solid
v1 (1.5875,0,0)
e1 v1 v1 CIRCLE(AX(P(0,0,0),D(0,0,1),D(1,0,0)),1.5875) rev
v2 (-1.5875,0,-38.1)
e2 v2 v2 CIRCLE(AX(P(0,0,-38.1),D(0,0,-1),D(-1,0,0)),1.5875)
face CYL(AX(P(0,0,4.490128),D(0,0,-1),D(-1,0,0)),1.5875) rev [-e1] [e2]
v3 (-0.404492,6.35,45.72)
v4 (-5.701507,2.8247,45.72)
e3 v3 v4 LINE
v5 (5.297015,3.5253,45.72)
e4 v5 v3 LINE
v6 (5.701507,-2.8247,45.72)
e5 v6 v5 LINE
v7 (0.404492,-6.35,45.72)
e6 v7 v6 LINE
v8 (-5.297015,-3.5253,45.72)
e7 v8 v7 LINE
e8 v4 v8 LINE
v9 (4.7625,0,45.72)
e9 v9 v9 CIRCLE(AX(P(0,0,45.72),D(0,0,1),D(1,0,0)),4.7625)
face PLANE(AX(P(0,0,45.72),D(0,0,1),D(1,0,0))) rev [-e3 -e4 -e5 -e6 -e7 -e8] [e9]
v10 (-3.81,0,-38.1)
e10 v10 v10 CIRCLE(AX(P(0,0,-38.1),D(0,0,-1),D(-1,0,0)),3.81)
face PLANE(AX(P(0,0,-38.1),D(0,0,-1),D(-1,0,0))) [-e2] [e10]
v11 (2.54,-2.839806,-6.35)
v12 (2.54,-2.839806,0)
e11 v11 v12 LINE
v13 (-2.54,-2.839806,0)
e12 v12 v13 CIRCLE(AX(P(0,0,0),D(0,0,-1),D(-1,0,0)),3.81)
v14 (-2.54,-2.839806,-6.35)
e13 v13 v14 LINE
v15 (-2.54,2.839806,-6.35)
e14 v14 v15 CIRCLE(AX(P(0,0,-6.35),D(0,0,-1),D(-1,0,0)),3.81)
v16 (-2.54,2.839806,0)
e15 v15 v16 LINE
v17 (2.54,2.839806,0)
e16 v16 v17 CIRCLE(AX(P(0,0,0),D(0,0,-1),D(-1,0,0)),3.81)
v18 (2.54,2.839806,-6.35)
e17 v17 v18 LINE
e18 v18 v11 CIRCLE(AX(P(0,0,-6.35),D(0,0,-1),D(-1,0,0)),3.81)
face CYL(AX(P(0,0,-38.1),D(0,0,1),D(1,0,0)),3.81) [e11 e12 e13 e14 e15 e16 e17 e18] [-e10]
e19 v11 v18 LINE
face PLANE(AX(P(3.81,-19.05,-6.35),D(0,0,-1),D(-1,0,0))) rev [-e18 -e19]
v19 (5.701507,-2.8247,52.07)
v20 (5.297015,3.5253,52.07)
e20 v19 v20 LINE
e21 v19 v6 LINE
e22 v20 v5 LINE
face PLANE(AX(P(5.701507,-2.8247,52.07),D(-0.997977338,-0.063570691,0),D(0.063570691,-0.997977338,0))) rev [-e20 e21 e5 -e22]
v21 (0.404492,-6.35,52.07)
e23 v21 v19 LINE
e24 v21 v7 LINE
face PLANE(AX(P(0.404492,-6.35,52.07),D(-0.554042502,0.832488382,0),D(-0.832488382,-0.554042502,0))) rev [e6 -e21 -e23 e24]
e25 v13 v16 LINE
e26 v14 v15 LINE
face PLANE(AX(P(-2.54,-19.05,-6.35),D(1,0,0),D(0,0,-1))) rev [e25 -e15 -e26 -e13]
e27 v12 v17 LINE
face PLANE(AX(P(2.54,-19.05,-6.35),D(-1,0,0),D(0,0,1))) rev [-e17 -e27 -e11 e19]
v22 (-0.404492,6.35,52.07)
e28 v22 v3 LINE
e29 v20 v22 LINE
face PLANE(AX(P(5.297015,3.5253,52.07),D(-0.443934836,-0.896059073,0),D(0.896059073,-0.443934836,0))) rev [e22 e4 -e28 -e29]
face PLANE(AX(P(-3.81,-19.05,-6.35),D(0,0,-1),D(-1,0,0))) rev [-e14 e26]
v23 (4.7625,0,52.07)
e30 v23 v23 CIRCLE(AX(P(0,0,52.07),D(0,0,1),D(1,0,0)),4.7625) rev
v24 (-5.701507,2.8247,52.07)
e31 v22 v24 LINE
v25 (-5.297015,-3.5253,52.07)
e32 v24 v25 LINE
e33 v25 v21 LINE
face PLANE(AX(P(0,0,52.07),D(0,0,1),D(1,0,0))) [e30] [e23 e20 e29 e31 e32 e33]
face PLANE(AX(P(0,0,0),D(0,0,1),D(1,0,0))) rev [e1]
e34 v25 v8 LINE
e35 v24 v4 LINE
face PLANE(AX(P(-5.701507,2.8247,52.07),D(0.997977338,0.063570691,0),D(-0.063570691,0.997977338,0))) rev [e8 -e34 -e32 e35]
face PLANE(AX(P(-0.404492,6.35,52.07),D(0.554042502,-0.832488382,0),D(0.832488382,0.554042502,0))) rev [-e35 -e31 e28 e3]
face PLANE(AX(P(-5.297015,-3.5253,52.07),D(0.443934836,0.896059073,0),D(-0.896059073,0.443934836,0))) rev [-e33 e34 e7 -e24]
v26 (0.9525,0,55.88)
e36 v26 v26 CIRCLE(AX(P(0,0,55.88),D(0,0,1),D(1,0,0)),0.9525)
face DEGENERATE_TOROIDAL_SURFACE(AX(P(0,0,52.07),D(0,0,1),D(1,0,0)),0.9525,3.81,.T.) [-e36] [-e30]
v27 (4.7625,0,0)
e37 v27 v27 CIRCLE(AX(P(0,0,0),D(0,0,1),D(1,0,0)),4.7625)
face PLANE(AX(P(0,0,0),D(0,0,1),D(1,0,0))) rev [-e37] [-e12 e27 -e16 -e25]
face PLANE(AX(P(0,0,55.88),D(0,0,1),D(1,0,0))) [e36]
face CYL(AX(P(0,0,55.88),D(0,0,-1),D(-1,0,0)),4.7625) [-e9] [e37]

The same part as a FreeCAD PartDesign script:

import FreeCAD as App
import Part
import Sketcher
from FreeCAD import Vector
Q = App.Units.Quantity


def edges_at(feature, points):
    """Names of the edges that pass closest to the given points."""
    edges = feature.Shape.Edges
    near = lambda p: min(range(len(edges)), key=lambda i: edges[i].distToShape(Part.Vertex(*p))[0])
    return sorted({f"Edge{near(p) + 1}" for p in points})

doc = App.newDocument("Part")
body = doc.addObject("PartDesign::Body", "Body")

# Sketch on XY plane
sketch1 = body.newObject("Sketcher::SketchObject", "Sketch")
sketch1.AttachmentSupport = (doc.getObject("XY_Plane"), [""])
sketch1.MapMode = "FlatFace"
sketch1.addGeometry(Part.Circle(Vector(0, 0, 0), Vector(0, 0, 1), 4.8), False)
sketch1.addConstraint(Sketcher.Constraint("Coincident", 0, 3, -1, 1))
sketch1.addConstraint(Sketcher.Constraint("Diameter", 0, Q("0.375 in")))
pad1 = body.newObject("PartDesign::Pad", "Pad")
pad1.Profile = sketch1
pad1.Length = Q("2.2 in")

# Sketch on XY plane
sketch2 = body.newObject("Sketcher::SketchObject", "Sketch001")
sketch2.AttachmentSupport = (doc.getObject("XY_Plane"), [""])
sketch2.MapMode = "FlatFace"
sketch2.addGeometry(Part.Circle(Vector(0, 0, 0), Vector(0, 0, 1), 3.8), False)
sketch2.addConstraint(Sketcher.Constraint("Coincident", 0, 3, -1, 1))
sketch2.addConstraint(Sketcher.Constraint("Diameter", 0, Q("0.3 in")))
pad2 = body.newObject("PartDesign::Pad", "Pad001")
pad2.Profile = sketch2
pad2.Length = Q("1.5 in")
pad2.Reversed = True

# Sketch on XZ plane
sketch3 = body.newObject("Sketcher::SketchObject", "Sketch002")
sketch3.AttachmentSupport = (doc.getObject("XZ_Plane"), [""])
sketch3.MapMode = "FlatFace"
sketch3.addGeometry(Part.LineSegment(Vector(-3.8, -6.3, 0), Vector(-3.8, 0, 0)), False)
sketch3.addGeometry(Part.LineSegment(Vector(-3.8, 0, 0), Vector(-2.5, 0, 0)), False)
sketch3.addGeometry(Part.LineSegment(Vector(-2.5, 0, 0), Vector(-2.5, -6.3, 0)), False)
sketch3.addGeometry(Part.LineSegment(Vector(-2.5, -6.3, 0), Vector(-3.8, -6.3, 0)), False)
sketch3.addGeometry(Part.LineSegment(Vector(2.5, -6.3, 0), Vector(2.5, 0, 0)), False)
sketch3.addGeometry(Part.LineSegment(Vector(2.5, 0, 0), Vector(3.8, 0, 0)), False)
sketch3.addGeometry(Part.LineSegment(Vector(3.8, 0, 0), Vector(3.8, -6.3, 0)), False)
sketch3.addGeometry(Part.LineSegment(Vector(3.8, -6.3, 0), Vector(2.5, -6.3, 0)), False)
sketch3.addConstraint(Sketcher.Constraint("Coincident", 0, 2, 1, 1))
sketch3.addConstraint(Sketcher.Constraint("Coincident", 1, 2, 2, 1))
sketch3.addConstraint(Sketcher.Constraint("Coincident", 2, 2, 3, 1))
sketch3.addConstraint(Sketcher.Constraint("Coincident", 3, 2, 0, 1))
sketch3.addConstraint(Sketcher.Constraint("Coincident", 4, 2, 5, 1))
sketch3.addConstraint(Sketcher.Constraint("Coincident", 5, 2, 6, 1))
sketch3.addConstraint(Sketcher.Constraint("Coincident", 6, 2, 7, 1))
sketch3.addConstraint(Sketcher.Constraint("Coincident", 7, 2, 4, 1))
sketch3.addConstraint(Sketcher.Constraint("Vertical", 0))
sketch3.addConstraint(Sketcher.Constraint("Horizontal", 1))
sketch3.addConstraint(Sketcher.Constraint("Vertical", 2))
sketch3.addConstraint(Sketcher.Constraint("Horizontal", 3))
sketch3.addConstraint(Sketcher.Constraint("Vertical", 4))
sketch3.addConstraint(Sketcher.Constraint("Horizontal", 5))
sketch3.addConstraint(Sketcher.Constraint("Vertical", 6))
sketch3.addConstraint(Sketcher.Constraint("Horizontal", 7))
sketch3.addConstraint(Sketcher.Constraint("Symmetric", 1, 2, 4, 2, -1, 1))
sketch3.addConstraint(Sketcher.Constraint("Symmetric", 0, 2, 5, 2, -2))
sketch3.addConstraint(Sketcher.Constraint("Horizontal", 3, 2, 6, 2))
sketch3.addConstraint(Sketcher.Constraint("DistanceX", 1, 1, 1, 2, Q("0.05 in")))
sketch3.addConstraint(Sketcher.Constraint("DistanceY", 0, 1, 0, 2, Q("0.25 in")))
sketch3.addConstraint(Sketcher.Constraint("DistanceX", 1, 2, -1, 1, Q("0.1 in")))
pocket1 = body.newObject("PartDesign::Pocket", "Pocket")
pocket1.Profile = sketch3
pocket1.Length = Q("1.5 in")
pocket1.Midplane = True

# Sketch on XY plane
sketch4 = body.newObject("Sketcher::SketchObject", "Sketch003")
sketch4.AttachmentSupport = (doc.getObject("XY_Plane"), [""])
sketch4.MapMode = "FlatFace"
sketch4.AttachmentOffset = App.Placement(Vector(0, 0, -1.5 * 25.4), App.Rotation())
sketch4.addGeometry(Part.Circle(Vector(0, 0, 0), Vector(0, 0, 1), 1.6), False)
sketch4.addConstraint(Sketcher.Constraint("Coincident", 0, 3, -1, 1))
sketch4.addConstraint(Sketcher.Constraint("Diameter", 0, Q("0.125 in")))
pocket2 = body.newObject("PartDesign::Pocket", "Pocket001")
pocket2.Profile = sketch4
pocket2.Length = Q("1.5 in")
pocket2.Reversed = True
doc.recompute()

fillet = body.newObject("PartDesign::Fillet", "Fillet")
fillet.Base = (pocket2, edges_at(pocket2, [(-4.763, 0, 55.88)]))
fillet.Radius = Q("0.15 in")

# Sketch on XY plane
sketch5 = body.newObject("Sketcher::SketchObject", "Sketch004")
sketch5.AttachmentSupport = (doc.getObject("XY_Plane"), [""])
sketch5.MapMode = "FlatFace"
sketch5.AttachmentOffset = App.Placement(Vector(0, 0, 1.8 * 25.4), App.Rotation())
sketch5.addGeometry(Part.LineSegment(Vector(6, -3, 0), Vector(5, 4, 0)), False)
sketch5.addGeometry(Part.LineSegment(Vector(5, 4, 0), Vector(0, 6, 0)), False)
sketch5.addGeometry(Part.LineSegment(Vector(0, 6, 0), Vector(-6, 3, 0)), False)
sketch5.addGeometry(Part.LineSegment(Vector(-6, 3, 0), Vector(-5, -4, 0)), False)
sketch5.addGeometry(Part.LineSegment(Vector(-5, -4, 0), Vector(0, -6, 0)), False)
sketch5.addGeometry(Part.LineSegment(Vector(0, -6, 0), Vector(6, -3, 0)), False)
sketch5.addConstraint(Sketcher.Constraint("Coincident", 0, 2, 1, 1))
sketch5.addConstraint(Sketcher.Constraint("Coincident", 1, 2, 2, 1))
sketch5.addConstraint(Sketcher.Constraint("Coincident", 2, 2, 3, 1))
sketch5.addConstraint(Sketcher.Constraint("Coincident", 3, 2, 4, 1))
sketch5.addConstraint(Sketcher.Constraint("Coincident", 4, 2, 5, 1))
sketch5.addConstraint(Sketcher.Constraint("Coincident", 5, 2, 0, 1))
sketch5.addConstraint(Sketcher.Constraint("Symmetric", 0, 2, 3, 2, -1, 1))
sketch5.addConstraint(Sketcher.Constraint("Symmetric", 1, 2, 4, 2, -1, 1))
sketch5.addConstraint(Sketcher.Constraint("Symmetric", 2, 2, 5, 2, -1, 1))
sketch5.addConstraint(Sketcher.Constraint("Equal", 0, 1))
sketch5.addConstraint(Sketcher.Constraint("Equal", 1, 2))
sketch5.addConstraint(Sketcher.Constraint("DistanceY", 4, 2, 1, 2, Q("0.5 in")))
sketch5.addConstraint(Sketcher.Constraint("DistanceY", 3, 2, 2, 2, Q("0.25 in")))
sketch5.addConstraint(Sketcher.Constraint("DistanceY", -1, 1, 0, 2, Q("3.5253 mm")))
sketch5.addConstraint(Sketcher.Constraint("DistanceX", 2, 2, 4, 2, Q("6.105999 mm")))
pad3 = body.newObject("PartDesign::Pad", "Pad002")
pad3.Profile = sketch5
pad3.Length = Q("0.25 in")

doc.recompute()
